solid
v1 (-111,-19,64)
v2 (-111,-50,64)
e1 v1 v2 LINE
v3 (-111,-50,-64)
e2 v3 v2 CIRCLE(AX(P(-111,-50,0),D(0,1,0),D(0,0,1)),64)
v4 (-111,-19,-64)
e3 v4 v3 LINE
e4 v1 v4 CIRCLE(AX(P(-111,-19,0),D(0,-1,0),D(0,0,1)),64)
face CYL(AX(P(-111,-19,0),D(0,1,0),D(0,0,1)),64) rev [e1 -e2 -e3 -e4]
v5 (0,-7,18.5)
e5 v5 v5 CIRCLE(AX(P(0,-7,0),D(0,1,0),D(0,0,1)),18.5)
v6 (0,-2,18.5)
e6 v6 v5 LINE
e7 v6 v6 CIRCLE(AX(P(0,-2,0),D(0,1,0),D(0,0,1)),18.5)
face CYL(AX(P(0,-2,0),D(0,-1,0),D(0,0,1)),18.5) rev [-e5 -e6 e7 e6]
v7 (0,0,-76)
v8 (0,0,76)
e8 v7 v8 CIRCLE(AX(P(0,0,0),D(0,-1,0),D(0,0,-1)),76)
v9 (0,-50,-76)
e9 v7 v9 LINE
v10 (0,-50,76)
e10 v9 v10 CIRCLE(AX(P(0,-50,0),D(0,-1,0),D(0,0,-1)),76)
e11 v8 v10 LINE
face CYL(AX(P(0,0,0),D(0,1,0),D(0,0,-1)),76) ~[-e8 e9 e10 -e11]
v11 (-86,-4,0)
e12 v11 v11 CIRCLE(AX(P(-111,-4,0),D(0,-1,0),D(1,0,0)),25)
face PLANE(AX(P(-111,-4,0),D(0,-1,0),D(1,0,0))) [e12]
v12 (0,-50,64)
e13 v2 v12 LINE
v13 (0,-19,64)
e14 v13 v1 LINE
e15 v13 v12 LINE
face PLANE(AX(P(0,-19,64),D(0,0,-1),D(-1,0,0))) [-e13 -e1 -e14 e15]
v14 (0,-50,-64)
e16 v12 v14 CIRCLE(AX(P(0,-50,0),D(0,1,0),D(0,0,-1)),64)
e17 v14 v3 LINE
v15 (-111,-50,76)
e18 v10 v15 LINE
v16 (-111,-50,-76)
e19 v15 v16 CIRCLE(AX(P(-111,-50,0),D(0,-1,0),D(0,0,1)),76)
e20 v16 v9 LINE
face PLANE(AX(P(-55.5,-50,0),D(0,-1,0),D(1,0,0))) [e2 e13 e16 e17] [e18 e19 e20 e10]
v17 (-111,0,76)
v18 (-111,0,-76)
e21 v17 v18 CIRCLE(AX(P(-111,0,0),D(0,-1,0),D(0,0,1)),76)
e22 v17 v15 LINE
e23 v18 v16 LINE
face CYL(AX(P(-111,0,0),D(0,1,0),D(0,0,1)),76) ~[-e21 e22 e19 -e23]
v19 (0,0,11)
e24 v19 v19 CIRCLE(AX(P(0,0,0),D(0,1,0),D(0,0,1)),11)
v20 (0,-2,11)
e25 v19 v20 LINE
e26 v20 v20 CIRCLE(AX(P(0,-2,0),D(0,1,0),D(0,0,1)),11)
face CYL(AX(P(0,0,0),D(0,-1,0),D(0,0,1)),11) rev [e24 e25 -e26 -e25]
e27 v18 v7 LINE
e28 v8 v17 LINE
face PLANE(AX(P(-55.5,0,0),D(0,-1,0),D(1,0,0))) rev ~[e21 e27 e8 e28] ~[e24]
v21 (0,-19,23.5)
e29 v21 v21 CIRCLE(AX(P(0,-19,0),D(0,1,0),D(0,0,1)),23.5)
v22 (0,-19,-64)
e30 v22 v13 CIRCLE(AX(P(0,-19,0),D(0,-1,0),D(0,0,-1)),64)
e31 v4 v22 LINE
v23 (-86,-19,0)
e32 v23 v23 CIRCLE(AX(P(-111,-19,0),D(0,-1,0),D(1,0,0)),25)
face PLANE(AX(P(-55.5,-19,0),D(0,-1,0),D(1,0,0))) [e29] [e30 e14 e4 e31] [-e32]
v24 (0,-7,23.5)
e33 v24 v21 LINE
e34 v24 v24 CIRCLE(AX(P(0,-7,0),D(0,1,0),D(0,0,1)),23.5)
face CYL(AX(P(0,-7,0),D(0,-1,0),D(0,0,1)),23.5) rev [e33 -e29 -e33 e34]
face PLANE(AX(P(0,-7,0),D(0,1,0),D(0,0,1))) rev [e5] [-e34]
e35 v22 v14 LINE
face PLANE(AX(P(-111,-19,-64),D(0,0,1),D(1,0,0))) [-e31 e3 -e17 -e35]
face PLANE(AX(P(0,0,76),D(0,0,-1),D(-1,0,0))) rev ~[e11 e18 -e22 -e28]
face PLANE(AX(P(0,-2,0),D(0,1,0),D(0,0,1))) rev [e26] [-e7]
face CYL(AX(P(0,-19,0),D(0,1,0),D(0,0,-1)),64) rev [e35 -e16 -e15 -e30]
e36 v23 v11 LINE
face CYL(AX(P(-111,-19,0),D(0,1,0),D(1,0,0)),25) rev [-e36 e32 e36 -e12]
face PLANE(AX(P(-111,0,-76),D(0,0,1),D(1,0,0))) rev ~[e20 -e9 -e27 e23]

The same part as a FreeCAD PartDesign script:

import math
import FreeCAD as App
import Part
import Sketcher
from FreeCAD import Vector
Q = App.Units.Quantity

doc = App.newDocument("Part")
body = doc.addObject("PartDesign::Body", "Body")

sketch1 = body.newObject("Sketcher::SketchObject", "Sketch")
sketch1.AttachmentSupport = (doc.getObject("XZ_Plane"), [""])
sketch1.MapMode = "FlatFace"
sketch1.addGeometry(Part.LineSegment(Vector(0, 76, 0), Vector(-111, 76, 0)), False)
sketch1.addGeometry(Part.ArcOfCircle(Part.Circle(Vector(-111, 0, 0), Vector(0, 0, 1), 76), math.radians(90), math.radians(270)), False)
sketch1.addGeometry(Part.LineSegment(Vector(-111, -76, 0), Vector(0, -76, 0)), False)
sketch1.addGeometry(Part.ArcOfCircle(Part.Circle(Vector(0, 0, 0), Vector(0, 0, 1), 76), math.radians(-90), math.radians(90)), False)
sketch1.addConstraint(Sketcher.Constraint("Tangent", 0, 2, 1, 1))
sketch1.addConstraint(Sketcher.Constraint("Tangent", 1, 2, 2, 1))
sketch1.addConstraint(Sketcher.Constraint("Tangent", 2, 2, 3, 1))
sketch1.addConstraint(Sketcher.Constraint("Tangent", 3, 2, 0, 1))
sketch1.addConstraint(Sketcher.Constraint("Horizontal", 0))
sketch1.addConstraint(Sketcher.Constraint("Horizontal", 2))
sketch1.addConstraint(Sketcher.Constraint("Coincident", 3, 3, -1, 1))
sketch1.addConstraint(Sketcher.Constraint("Radius", 1, Q("76 mm")))
sketch1.addConstraint(Sketcher.Constraint("DistanceX", 0, 2, 0, 1, Q("111 mm")))
pad1 = body.newObject("PartDesign::Pad", "Pad")
pad1.Profile = sketch1
pad1.Length = 50

sketch2 = body.newObject("Sketcher::SketchObject", "Sketch001")
sketch2.AttachmentSupport = (doc.getObject("XZ_Plane"), [""])
sketch2.MapMode = "FlatFace"
sketch2.AttachmentOffset = App.Placement(Vector(0, 0, 19), App.Rotation())
sketch2.addGeometry(Part.Circle(Vector(-111, 0, 0), Vector(0, 0, 1), 25), False)
sketch2.addConstraint(Sketcher.Constraint("PointOnObject", 0, 3, -1))
sketch2.addConstraint(Sketcher.Constraint("Diameter", 0, Q("50 mm")))
sketch2.addConstraint(Sketcher.Constraint("DistanceX", 0, 3, -1, 1, Q("111 mm")))
pocket1 = body.newObject("PartDesign::Pocket", "Pocket")
pocket1.Profile = sketch2
pocket1.Length = 15

sketch3 = body.newObject("Sketcher::SketchObject", "Sketch002")
sketch3.AttachmentSupport = (doc.getObject("XZ_Plane"), [""])
sketch3.MapMode = "FlatFace"
sketch3.AttachmentOffset = App.Placement(Vector(0, 0, 19), App.Rotation())
sketch3.addGeometry(Part.Circle(Vector(-111, 0, 0), Vector(0, 0, 1), 25), False)
sketch3.addConstraint(Sketcher.Constraint("PointOnObject", 0, 3, -1))
sketch3.addConstraint(Sketcher.Constraint("Diameter", 0, Q("50 mm")))
sketch3.addConstraint(Sketcher.Constraint("DistanceX", 0, 3, -1, 1, Q("111 mm")))
pocket2 = body.newObject("PartDesign::Pocket", "Pocket001")
pocket2.Profile = sketch3
pocket2.Length = 35
pocket2.Reversed = True

sketch4 = body.newObject("Sketcher::SketchObject", "Sketch003")
sketch4.AttachmentSupport = (doc.getObject("XZ_Plane"), [""])
sketch4.MapMode = "FlatFace"
sketch4.AttachmentOffset = App.Placement(Vector(0, 0, 19), App.Rotation())
sketch4.addGeometry(Part.LineSegment(Vector(0, 64, 0), Vector(-111, 64, 0)), False)
sketch4.addGeometry(Part.ArcOfCircle(Part.Circle(Vector(-111, 0, 0), Vector(0, 0, 1), 64), math.radians(90), math.radians(270)), False)
sketch4.addGeometry(Part.LineSegment(Vector(-111, -64, 0), Vector(0, -64, 0)), False)
sketch4.addGeometry(Part.ArcOfCircle(Part.Circle(Vector(0, 0, 0), Vector(0, 0, 1), 64), math.radians(-90), math.radians(90)), False)
sketch4.addGeometry(Part.Circle(Vector(-111, 0, 0), Vector(0, 0, 1), 25), False)
sketch4.addConstraint(Sketcher.Constraint("Tangent", 0, 2, 1, 1))
sketch4.addConstraint(Sketcher.Constraint("Tangent", 1, 2, 2, 1))
sketch4.addConstraint(Sketcher.Constraint("Tangent", 2, 2, 3, 1))
sketch4.addConstraint(Sketcher.Constraint("Tangent", 3, 2, 0, 1))
sketch4.addConstraint(Sketcher.Constraint("Horizontal", 0))
sketch4.addConstraint(Sketcher.Constraint("Horizontal", 2))
sketch4.addConstraint(Sketcher.Constraint("Coincident", 3, 3, -1, 1))
sketch4.addConstraint(Sketcher.Constraint("Coincident", 4, 3, 1, 3))
sketch4.addConstraint(Sketcher.Constraint("Diameter", 4, Q("50 mm")))
sketch4.addConstraint(Sketcher.Constraint("Radius", 1, Q("64 mm")))
sketch4.addConstraint(Sketcher.Constraint("DistanceX", 0, 2, 0, 1, Q("111 mm")))
pocket3 = body.newObject("PartDesign::Pocket", "Pocket002")
pocket3.Profile = sketch4
pocket3.Length = 35
pocket3.Reversed = True

sketch5 = body.newObject("Sketcher::SketchObject", "Sketch004")
sketch5.AttachmentSupport = (doc.getObject("YZ_Plane"), [""])
sketch5.MapMode = "FlatFace"
sketch5.addGeometry(Part.LineSegment(Vector(0, 11, 0), Vector(-2, 11, 0)), False)
sketch5.addGeometry(Part.LineSegment(Vector(-2, 11, 0), Vector(-2, 18.5, 0)), False)
sketch5.addGeometry(Part.LineSegment(Vector(-2, 18.5, 0), Vector(-7, 18.5, 0)), False)
sketch5.addGeometry(Part.LineSegment(Vector(-7, 18.5, 0), Vector(-7, 23.5, 0)), False)
sketch5.addGeometry(Part.LineSegment(Vector(-7, 23.5, 0), Vector(-19, 23.5, 0)), False)
sketch5.addGeometry(Part.LineSegment(Vector(-19, 23.5, 0), Vector(-19, 0, 0)), False)
sketch5.addGeometry(Part.LineSegment(Vector(-19, 0, 0), Vector(0, 0, 0)), False)
sketch5.addGeometry(Part.LineSegment(Vector(0, 0, 0), Vector(0, 11, 0)), False)
sketch5.addConstraint(Sketcher.Constraint("Coincident", 0, 2, 1, 1))
sketch5.addConstraint(Sketcher.Constraint("Coincident", 1, 2, 2, 1))
sketch5.addConstraint(Sketcher.Constraint("Coincident", 2, 2, 3, 1))
sketch5.addConstraint(Sketcher.Constraint("Coincident", 3, 2, 4, 1))
sketch5.addConstraint(Sketcher.Constraint("Coincident", 4, 2, 5, 1))
sketch5.addConstraint(Sketcher.Constraint("Coincident", 5, 2, 6, 1))
sketch5.addConstraint(Sketcher.Constraint("Coincident", 6, 2, 7, 1))
sketch5.addConstraint(Sketcher.Constraint("Coincident", 7, 2, 0, 1))
sketch5.addConstraint(Sketcher.Constraint("Horizontal", 0))
sketch5.addConstraint(Sketcher.Constraint("Vertical", 1))
sketch5.addConstraint(Sketcher.Constraint("Horizontal", 2))
sketch5.addConstraint(Sketcher.Constraint("Vertical", 3))
sketch5.addConstraint(Sketcher.Constraint("Horizontal", 4))
sketch5.addConstraint(Sketcher.Constraint("Vertical", 5))
sketch5.addConstraint(Sketcher.Constraint("Horizontal", 6))
sketch5.addConstraint(Sketcher.Constraint("Vertical", 7))
sketch5.addConstraint(Sketcher.Constraint("Coincident", 6, 2, -1, 1))
sketch5.addConstraint(Sketcher.Constraint("Equal", 2, 3))
sketch5.addConstraint(Sketcher.Constraint("DistanceX", 0, 2, 0, 1, Q("2 mm")))
sketch5.addConstraint(Sketcher.Constraint("DistanceX", 2, 2, 2, 1, Q("5 mm")))
sketch5.addConstraint(Sketcher.Constraint("DistanceX", 4, 2, 4, 1, Q("12 mm")))
sketch5.addConstraint(Sketcher.Constraint("DistanceY", 7, 1, 7, 2, Q("11 mm")))
sketch5.addConstraint(Sketcher.Constraint("DistanceY", 1, 1, 1, 2, Q("7.5 mm")))
groove = body.newObject("PartDesign::Groove", "Groove")
groove.Profile = sketch5
groove.ReferenceAxis = (sketch5, ["H_Axis"])
groove.Angle = 360

doc.recompute()
